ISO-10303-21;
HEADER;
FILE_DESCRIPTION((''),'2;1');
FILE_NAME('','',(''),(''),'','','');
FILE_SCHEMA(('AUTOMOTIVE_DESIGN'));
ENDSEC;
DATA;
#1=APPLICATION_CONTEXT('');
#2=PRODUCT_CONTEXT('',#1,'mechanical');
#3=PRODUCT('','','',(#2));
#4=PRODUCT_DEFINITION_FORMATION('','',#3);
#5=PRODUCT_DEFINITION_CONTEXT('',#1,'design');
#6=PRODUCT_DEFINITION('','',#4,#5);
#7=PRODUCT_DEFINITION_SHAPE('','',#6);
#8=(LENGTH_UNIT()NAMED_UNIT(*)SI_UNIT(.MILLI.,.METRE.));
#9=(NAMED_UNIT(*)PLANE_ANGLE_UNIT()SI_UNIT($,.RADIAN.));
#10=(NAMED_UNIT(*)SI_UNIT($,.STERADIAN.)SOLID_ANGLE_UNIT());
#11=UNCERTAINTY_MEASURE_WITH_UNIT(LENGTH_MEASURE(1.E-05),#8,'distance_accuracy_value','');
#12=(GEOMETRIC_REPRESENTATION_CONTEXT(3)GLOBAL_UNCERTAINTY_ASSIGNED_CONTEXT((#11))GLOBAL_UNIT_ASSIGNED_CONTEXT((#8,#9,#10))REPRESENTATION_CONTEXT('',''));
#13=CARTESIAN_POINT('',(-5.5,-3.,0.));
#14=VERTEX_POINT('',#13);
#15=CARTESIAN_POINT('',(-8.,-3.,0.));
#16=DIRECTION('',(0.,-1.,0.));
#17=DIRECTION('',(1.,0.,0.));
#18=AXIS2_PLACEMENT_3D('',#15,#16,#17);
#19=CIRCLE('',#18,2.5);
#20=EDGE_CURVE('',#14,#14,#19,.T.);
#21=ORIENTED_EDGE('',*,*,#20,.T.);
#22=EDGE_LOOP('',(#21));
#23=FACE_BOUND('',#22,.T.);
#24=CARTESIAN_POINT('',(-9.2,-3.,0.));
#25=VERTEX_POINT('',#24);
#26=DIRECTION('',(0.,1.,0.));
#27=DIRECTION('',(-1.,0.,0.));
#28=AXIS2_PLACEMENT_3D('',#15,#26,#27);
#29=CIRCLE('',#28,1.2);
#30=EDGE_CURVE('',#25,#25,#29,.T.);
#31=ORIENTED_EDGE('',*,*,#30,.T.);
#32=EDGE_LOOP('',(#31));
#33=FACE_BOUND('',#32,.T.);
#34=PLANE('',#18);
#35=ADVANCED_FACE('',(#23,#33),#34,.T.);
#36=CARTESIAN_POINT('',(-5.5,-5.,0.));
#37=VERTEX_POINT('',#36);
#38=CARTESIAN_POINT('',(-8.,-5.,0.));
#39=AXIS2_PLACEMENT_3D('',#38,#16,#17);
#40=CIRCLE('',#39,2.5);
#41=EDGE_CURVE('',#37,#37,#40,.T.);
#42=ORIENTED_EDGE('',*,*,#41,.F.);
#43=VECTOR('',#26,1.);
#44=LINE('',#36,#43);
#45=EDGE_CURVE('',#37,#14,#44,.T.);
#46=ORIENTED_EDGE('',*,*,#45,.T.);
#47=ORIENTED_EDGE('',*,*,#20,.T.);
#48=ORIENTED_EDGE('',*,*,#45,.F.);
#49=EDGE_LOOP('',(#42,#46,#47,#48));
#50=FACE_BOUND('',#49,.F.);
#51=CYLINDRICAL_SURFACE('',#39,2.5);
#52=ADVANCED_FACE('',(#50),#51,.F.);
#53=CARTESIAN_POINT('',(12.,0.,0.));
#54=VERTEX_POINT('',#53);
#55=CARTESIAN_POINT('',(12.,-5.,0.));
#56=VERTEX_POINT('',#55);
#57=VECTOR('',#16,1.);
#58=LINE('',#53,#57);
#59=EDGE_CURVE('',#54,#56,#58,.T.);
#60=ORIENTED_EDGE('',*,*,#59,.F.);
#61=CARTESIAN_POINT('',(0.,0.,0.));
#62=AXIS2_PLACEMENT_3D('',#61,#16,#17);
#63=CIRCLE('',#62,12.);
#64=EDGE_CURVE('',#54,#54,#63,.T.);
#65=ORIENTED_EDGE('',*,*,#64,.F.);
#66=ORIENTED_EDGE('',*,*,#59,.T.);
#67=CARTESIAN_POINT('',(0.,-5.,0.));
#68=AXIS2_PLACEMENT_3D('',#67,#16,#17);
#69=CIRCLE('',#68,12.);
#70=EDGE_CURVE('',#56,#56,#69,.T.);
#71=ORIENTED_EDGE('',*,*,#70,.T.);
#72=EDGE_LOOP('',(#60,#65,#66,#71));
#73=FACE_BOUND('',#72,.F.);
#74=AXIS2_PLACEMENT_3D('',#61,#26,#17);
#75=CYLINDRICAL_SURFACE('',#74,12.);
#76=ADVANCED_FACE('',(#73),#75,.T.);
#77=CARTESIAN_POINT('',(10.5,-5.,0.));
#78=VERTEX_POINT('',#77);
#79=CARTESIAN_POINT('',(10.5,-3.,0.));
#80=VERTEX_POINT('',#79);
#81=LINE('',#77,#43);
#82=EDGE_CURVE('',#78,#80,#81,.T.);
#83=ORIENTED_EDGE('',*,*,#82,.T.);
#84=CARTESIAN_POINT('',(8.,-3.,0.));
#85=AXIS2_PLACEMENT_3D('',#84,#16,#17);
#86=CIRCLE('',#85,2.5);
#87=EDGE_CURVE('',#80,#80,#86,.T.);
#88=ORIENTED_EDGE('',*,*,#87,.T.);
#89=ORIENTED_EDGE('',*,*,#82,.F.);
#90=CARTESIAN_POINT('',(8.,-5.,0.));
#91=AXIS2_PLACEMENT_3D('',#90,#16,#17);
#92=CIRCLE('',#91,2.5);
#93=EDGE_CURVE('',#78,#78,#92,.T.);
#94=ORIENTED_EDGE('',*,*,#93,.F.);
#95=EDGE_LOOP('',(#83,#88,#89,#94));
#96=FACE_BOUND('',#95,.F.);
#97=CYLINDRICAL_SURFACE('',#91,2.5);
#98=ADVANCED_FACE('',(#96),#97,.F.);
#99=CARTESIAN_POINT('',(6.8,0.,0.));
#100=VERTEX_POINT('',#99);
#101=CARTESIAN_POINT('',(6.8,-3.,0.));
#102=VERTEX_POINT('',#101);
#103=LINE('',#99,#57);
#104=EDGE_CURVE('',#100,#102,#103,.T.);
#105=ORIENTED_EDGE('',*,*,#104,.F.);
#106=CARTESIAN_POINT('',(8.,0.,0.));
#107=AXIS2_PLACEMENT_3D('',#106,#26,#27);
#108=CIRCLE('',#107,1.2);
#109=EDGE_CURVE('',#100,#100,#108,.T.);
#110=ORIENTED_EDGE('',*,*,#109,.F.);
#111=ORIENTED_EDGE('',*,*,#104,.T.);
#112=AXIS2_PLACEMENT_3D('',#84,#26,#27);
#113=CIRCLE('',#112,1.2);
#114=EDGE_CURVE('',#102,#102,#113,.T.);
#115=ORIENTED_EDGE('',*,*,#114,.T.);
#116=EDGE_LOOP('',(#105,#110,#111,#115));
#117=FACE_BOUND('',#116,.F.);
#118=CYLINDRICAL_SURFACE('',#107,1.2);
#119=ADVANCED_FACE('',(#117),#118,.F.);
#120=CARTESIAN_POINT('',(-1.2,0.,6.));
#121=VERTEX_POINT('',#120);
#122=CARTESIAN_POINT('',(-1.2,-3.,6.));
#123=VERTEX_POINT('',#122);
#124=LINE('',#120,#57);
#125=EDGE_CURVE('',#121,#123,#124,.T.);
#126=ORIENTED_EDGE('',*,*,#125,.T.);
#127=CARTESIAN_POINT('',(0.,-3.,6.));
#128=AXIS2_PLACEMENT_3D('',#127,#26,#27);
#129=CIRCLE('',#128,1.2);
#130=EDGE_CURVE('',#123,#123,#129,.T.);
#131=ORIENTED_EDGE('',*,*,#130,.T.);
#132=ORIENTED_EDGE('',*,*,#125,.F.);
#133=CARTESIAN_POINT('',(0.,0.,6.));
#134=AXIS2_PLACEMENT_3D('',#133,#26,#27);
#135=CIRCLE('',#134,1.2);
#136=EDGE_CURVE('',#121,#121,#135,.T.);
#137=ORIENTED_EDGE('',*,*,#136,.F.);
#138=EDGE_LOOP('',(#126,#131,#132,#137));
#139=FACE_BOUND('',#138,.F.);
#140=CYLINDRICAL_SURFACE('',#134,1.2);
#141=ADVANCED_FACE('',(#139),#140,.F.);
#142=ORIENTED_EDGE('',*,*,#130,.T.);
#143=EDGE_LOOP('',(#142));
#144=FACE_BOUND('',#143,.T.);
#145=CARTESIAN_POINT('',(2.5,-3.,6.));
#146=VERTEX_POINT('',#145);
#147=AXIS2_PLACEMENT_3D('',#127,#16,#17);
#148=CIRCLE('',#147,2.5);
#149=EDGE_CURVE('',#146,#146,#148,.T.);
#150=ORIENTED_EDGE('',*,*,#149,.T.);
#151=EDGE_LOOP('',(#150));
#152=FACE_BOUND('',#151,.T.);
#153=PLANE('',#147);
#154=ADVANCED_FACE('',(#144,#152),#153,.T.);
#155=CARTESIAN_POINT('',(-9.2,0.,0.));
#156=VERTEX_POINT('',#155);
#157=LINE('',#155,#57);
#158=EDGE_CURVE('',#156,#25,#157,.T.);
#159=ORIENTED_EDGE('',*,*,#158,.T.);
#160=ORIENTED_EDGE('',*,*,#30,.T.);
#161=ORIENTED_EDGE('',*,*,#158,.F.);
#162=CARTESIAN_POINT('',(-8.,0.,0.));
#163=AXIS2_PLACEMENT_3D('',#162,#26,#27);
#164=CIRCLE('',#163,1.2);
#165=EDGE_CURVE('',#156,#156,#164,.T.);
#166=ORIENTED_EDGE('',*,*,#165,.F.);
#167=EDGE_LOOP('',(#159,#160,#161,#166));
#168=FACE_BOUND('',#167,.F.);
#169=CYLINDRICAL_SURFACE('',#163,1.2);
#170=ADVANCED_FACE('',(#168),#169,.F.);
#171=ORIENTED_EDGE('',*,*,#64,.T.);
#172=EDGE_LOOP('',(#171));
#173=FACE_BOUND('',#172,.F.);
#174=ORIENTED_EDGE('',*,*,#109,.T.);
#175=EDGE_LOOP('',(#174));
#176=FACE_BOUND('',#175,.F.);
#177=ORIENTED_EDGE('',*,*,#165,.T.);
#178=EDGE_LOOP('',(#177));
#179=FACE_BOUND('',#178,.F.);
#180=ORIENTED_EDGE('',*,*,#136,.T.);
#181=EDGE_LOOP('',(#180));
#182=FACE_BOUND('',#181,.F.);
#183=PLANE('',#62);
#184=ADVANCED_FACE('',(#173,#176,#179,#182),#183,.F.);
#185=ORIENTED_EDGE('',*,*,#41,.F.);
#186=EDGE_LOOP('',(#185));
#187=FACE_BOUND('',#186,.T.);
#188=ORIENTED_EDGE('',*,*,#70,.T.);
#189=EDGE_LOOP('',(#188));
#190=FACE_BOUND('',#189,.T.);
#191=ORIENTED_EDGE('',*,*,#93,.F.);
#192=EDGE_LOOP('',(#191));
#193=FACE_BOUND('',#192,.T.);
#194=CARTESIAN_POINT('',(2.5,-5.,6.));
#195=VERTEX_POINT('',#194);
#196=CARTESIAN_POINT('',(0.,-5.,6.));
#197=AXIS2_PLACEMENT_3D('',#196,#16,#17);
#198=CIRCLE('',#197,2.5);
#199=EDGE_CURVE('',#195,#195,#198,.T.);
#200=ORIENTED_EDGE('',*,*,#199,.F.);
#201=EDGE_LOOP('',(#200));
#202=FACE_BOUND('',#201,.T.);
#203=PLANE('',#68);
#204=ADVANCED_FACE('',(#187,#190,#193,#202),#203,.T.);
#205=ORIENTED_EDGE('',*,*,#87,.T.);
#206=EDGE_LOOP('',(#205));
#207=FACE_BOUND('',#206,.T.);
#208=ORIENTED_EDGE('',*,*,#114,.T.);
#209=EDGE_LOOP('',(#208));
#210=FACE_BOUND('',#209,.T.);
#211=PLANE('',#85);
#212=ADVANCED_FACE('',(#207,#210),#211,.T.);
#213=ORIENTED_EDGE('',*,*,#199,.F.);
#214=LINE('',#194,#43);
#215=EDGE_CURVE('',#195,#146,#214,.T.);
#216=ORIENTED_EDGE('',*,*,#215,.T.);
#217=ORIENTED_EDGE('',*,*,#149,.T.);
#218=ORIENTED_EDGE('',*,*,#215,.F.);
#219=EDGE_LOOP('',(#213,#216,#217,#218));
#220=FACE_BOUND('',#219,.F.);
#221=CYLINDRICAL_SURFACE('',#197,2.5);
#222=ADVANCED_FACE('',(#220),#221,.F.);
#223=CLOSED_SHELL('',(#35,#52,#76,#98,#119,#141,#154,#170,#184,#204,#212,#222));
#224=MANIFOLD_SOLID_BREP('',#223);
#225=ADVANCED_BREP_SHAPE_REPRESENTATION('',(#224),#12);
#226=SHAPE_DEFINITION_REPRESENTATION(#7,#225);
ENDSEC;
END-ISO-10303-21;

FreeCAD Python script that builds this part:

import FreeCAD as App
import Part
import Sketcher
Q = App.Units.Quantity

doc = App.newDocument("Part")
body = doc.addObject("PartDesign::Body", "Body")

# Sketch on XZ plane
sketch1 = doc.addObject("Sketcher::SketchObject", "Sketch")
body.addObject(sketch1)
sketch1.AttachmentSupport = (doc.XZ_Plane, [""])
sketch1.MapMode = "FlatFace"
sketch1.addGeometry(Part.Circle(App.Vector(0, 0, 0), App.Vector(0, 0, 1), 12), False)
sketch1.addConstraint([
    Sketcher.Constraint("Coincident", 0, 3, -1, 1),
    Sketcher.Constraint("Diameter", 0, Q("24 mm")),
])
pad1 = doc.addObject("PartDesign::Pad", "Pad")
body.addObject(pad1)
pad1.Profile = sketch1
pad1.Length = 5

# Sketch on XZ plane
sketch2 = doc.addObject("Sketcher::SketchObject", "Sketch001")
body.addObject(sketch2)
sketch2.AttachmentSupport = (doc.XZ_Plane, [""])
sketch2.MapMode = "FlatFace"
sketch2.addGeometry([
    Part.Circle(App.Vector(-8, 0, 0), App.Vector(0, 0, 1), 1.2),
    Part.Circle(App.Vector(8, 0, 0), App.Vector(0, 0, 1), 1.2),
    Part.Circle(App.Vector(0, 6, 0), App.Vector(0, 0, 1), 1.2),
], False)
sketch2.addConstraint([
    Sketcher.Constraint("Equal", 0, 1),
    Sketcher.Constraint("Equal", 1, 2),
    Sketcher.Constraint("Symmetric", 0, 3, 1, 3, -1, 1),
    Sketcher.Constraint("PointOnObject", 0, 3, -1),
    Sketcher.Constraint("PointOnObject", 2, 3, -2),
    Sketcher.Constraint("Diameter", 0, Q("2.4 mm")),
    Sketcher.Constraint("DistanceX", 0, 3, -1, 1, Q("8 mm")),
    Sketcher.Constraint("DistanceY", -1, 1, 2, 3, Q("6 mm")),
])
pocket1 = doc.addObject("PartDesign::Pocket", "Pocket")
body.addObject(pocket1)
pocket1.Profile = sketch2
pocket1.Length = 5
pocket1.Reversed = True

# Sketch on XZ plane
sketch3 = doc.addObject("Sketcher::SketchObject", "Sketch002")
body.addObject(sketch3)
sketch3.AttachmentSupport = (doc.XZ_Plane, [""])
sketch3.MapMode = "FlatFace"
sketch3.AttachmentOffset = App.Placement(App.Vector(0, 0, 5), App.Rotation())
sketch3.addGeometry([
    Part.Circle(App.Vector(0, 6, 0), App.Vector(0, 0, 1), 2.5),
    Part.Circle(App.Vector(8, 0, 0), App.Vector(0, 0, 1), 2.5),
    Part.Circle(App.Vector(-8, 0, 0), App.Vector(0, 0, 1), 2.5),
], False)
sketch3.addConstraint([
    Sketcher.Constraint("Equal", 0, 1),
    Sketcher.Constraint("Equal", 1, 2),
    Sketcher.Constraint("Symmetric", 1, 3, 2, 3, -1, 1),
    Sketcher.Constraint("PointOnObject", 0, 3, -2),
    Sketcher.Constraint("PointOnObject", 1, 3, -1),
    Sketcher.Constraint("Diameter", 0, Q("5 mm")),
    Sketcher.Constraint("DistanceY", -1, 1, 0, 3, Q("6 mm")),
    Sketcher.Constraint("DistanceX", -1, 1, 1, 3, Q("8 mm")),
])
pocket2 = doc.addObject("PartDesign::Pocket", "Pocket001")
body.addObject(pocket2)
pocket2.Profile = sketch3
pocket2.Length = 2

doc.recompute()
